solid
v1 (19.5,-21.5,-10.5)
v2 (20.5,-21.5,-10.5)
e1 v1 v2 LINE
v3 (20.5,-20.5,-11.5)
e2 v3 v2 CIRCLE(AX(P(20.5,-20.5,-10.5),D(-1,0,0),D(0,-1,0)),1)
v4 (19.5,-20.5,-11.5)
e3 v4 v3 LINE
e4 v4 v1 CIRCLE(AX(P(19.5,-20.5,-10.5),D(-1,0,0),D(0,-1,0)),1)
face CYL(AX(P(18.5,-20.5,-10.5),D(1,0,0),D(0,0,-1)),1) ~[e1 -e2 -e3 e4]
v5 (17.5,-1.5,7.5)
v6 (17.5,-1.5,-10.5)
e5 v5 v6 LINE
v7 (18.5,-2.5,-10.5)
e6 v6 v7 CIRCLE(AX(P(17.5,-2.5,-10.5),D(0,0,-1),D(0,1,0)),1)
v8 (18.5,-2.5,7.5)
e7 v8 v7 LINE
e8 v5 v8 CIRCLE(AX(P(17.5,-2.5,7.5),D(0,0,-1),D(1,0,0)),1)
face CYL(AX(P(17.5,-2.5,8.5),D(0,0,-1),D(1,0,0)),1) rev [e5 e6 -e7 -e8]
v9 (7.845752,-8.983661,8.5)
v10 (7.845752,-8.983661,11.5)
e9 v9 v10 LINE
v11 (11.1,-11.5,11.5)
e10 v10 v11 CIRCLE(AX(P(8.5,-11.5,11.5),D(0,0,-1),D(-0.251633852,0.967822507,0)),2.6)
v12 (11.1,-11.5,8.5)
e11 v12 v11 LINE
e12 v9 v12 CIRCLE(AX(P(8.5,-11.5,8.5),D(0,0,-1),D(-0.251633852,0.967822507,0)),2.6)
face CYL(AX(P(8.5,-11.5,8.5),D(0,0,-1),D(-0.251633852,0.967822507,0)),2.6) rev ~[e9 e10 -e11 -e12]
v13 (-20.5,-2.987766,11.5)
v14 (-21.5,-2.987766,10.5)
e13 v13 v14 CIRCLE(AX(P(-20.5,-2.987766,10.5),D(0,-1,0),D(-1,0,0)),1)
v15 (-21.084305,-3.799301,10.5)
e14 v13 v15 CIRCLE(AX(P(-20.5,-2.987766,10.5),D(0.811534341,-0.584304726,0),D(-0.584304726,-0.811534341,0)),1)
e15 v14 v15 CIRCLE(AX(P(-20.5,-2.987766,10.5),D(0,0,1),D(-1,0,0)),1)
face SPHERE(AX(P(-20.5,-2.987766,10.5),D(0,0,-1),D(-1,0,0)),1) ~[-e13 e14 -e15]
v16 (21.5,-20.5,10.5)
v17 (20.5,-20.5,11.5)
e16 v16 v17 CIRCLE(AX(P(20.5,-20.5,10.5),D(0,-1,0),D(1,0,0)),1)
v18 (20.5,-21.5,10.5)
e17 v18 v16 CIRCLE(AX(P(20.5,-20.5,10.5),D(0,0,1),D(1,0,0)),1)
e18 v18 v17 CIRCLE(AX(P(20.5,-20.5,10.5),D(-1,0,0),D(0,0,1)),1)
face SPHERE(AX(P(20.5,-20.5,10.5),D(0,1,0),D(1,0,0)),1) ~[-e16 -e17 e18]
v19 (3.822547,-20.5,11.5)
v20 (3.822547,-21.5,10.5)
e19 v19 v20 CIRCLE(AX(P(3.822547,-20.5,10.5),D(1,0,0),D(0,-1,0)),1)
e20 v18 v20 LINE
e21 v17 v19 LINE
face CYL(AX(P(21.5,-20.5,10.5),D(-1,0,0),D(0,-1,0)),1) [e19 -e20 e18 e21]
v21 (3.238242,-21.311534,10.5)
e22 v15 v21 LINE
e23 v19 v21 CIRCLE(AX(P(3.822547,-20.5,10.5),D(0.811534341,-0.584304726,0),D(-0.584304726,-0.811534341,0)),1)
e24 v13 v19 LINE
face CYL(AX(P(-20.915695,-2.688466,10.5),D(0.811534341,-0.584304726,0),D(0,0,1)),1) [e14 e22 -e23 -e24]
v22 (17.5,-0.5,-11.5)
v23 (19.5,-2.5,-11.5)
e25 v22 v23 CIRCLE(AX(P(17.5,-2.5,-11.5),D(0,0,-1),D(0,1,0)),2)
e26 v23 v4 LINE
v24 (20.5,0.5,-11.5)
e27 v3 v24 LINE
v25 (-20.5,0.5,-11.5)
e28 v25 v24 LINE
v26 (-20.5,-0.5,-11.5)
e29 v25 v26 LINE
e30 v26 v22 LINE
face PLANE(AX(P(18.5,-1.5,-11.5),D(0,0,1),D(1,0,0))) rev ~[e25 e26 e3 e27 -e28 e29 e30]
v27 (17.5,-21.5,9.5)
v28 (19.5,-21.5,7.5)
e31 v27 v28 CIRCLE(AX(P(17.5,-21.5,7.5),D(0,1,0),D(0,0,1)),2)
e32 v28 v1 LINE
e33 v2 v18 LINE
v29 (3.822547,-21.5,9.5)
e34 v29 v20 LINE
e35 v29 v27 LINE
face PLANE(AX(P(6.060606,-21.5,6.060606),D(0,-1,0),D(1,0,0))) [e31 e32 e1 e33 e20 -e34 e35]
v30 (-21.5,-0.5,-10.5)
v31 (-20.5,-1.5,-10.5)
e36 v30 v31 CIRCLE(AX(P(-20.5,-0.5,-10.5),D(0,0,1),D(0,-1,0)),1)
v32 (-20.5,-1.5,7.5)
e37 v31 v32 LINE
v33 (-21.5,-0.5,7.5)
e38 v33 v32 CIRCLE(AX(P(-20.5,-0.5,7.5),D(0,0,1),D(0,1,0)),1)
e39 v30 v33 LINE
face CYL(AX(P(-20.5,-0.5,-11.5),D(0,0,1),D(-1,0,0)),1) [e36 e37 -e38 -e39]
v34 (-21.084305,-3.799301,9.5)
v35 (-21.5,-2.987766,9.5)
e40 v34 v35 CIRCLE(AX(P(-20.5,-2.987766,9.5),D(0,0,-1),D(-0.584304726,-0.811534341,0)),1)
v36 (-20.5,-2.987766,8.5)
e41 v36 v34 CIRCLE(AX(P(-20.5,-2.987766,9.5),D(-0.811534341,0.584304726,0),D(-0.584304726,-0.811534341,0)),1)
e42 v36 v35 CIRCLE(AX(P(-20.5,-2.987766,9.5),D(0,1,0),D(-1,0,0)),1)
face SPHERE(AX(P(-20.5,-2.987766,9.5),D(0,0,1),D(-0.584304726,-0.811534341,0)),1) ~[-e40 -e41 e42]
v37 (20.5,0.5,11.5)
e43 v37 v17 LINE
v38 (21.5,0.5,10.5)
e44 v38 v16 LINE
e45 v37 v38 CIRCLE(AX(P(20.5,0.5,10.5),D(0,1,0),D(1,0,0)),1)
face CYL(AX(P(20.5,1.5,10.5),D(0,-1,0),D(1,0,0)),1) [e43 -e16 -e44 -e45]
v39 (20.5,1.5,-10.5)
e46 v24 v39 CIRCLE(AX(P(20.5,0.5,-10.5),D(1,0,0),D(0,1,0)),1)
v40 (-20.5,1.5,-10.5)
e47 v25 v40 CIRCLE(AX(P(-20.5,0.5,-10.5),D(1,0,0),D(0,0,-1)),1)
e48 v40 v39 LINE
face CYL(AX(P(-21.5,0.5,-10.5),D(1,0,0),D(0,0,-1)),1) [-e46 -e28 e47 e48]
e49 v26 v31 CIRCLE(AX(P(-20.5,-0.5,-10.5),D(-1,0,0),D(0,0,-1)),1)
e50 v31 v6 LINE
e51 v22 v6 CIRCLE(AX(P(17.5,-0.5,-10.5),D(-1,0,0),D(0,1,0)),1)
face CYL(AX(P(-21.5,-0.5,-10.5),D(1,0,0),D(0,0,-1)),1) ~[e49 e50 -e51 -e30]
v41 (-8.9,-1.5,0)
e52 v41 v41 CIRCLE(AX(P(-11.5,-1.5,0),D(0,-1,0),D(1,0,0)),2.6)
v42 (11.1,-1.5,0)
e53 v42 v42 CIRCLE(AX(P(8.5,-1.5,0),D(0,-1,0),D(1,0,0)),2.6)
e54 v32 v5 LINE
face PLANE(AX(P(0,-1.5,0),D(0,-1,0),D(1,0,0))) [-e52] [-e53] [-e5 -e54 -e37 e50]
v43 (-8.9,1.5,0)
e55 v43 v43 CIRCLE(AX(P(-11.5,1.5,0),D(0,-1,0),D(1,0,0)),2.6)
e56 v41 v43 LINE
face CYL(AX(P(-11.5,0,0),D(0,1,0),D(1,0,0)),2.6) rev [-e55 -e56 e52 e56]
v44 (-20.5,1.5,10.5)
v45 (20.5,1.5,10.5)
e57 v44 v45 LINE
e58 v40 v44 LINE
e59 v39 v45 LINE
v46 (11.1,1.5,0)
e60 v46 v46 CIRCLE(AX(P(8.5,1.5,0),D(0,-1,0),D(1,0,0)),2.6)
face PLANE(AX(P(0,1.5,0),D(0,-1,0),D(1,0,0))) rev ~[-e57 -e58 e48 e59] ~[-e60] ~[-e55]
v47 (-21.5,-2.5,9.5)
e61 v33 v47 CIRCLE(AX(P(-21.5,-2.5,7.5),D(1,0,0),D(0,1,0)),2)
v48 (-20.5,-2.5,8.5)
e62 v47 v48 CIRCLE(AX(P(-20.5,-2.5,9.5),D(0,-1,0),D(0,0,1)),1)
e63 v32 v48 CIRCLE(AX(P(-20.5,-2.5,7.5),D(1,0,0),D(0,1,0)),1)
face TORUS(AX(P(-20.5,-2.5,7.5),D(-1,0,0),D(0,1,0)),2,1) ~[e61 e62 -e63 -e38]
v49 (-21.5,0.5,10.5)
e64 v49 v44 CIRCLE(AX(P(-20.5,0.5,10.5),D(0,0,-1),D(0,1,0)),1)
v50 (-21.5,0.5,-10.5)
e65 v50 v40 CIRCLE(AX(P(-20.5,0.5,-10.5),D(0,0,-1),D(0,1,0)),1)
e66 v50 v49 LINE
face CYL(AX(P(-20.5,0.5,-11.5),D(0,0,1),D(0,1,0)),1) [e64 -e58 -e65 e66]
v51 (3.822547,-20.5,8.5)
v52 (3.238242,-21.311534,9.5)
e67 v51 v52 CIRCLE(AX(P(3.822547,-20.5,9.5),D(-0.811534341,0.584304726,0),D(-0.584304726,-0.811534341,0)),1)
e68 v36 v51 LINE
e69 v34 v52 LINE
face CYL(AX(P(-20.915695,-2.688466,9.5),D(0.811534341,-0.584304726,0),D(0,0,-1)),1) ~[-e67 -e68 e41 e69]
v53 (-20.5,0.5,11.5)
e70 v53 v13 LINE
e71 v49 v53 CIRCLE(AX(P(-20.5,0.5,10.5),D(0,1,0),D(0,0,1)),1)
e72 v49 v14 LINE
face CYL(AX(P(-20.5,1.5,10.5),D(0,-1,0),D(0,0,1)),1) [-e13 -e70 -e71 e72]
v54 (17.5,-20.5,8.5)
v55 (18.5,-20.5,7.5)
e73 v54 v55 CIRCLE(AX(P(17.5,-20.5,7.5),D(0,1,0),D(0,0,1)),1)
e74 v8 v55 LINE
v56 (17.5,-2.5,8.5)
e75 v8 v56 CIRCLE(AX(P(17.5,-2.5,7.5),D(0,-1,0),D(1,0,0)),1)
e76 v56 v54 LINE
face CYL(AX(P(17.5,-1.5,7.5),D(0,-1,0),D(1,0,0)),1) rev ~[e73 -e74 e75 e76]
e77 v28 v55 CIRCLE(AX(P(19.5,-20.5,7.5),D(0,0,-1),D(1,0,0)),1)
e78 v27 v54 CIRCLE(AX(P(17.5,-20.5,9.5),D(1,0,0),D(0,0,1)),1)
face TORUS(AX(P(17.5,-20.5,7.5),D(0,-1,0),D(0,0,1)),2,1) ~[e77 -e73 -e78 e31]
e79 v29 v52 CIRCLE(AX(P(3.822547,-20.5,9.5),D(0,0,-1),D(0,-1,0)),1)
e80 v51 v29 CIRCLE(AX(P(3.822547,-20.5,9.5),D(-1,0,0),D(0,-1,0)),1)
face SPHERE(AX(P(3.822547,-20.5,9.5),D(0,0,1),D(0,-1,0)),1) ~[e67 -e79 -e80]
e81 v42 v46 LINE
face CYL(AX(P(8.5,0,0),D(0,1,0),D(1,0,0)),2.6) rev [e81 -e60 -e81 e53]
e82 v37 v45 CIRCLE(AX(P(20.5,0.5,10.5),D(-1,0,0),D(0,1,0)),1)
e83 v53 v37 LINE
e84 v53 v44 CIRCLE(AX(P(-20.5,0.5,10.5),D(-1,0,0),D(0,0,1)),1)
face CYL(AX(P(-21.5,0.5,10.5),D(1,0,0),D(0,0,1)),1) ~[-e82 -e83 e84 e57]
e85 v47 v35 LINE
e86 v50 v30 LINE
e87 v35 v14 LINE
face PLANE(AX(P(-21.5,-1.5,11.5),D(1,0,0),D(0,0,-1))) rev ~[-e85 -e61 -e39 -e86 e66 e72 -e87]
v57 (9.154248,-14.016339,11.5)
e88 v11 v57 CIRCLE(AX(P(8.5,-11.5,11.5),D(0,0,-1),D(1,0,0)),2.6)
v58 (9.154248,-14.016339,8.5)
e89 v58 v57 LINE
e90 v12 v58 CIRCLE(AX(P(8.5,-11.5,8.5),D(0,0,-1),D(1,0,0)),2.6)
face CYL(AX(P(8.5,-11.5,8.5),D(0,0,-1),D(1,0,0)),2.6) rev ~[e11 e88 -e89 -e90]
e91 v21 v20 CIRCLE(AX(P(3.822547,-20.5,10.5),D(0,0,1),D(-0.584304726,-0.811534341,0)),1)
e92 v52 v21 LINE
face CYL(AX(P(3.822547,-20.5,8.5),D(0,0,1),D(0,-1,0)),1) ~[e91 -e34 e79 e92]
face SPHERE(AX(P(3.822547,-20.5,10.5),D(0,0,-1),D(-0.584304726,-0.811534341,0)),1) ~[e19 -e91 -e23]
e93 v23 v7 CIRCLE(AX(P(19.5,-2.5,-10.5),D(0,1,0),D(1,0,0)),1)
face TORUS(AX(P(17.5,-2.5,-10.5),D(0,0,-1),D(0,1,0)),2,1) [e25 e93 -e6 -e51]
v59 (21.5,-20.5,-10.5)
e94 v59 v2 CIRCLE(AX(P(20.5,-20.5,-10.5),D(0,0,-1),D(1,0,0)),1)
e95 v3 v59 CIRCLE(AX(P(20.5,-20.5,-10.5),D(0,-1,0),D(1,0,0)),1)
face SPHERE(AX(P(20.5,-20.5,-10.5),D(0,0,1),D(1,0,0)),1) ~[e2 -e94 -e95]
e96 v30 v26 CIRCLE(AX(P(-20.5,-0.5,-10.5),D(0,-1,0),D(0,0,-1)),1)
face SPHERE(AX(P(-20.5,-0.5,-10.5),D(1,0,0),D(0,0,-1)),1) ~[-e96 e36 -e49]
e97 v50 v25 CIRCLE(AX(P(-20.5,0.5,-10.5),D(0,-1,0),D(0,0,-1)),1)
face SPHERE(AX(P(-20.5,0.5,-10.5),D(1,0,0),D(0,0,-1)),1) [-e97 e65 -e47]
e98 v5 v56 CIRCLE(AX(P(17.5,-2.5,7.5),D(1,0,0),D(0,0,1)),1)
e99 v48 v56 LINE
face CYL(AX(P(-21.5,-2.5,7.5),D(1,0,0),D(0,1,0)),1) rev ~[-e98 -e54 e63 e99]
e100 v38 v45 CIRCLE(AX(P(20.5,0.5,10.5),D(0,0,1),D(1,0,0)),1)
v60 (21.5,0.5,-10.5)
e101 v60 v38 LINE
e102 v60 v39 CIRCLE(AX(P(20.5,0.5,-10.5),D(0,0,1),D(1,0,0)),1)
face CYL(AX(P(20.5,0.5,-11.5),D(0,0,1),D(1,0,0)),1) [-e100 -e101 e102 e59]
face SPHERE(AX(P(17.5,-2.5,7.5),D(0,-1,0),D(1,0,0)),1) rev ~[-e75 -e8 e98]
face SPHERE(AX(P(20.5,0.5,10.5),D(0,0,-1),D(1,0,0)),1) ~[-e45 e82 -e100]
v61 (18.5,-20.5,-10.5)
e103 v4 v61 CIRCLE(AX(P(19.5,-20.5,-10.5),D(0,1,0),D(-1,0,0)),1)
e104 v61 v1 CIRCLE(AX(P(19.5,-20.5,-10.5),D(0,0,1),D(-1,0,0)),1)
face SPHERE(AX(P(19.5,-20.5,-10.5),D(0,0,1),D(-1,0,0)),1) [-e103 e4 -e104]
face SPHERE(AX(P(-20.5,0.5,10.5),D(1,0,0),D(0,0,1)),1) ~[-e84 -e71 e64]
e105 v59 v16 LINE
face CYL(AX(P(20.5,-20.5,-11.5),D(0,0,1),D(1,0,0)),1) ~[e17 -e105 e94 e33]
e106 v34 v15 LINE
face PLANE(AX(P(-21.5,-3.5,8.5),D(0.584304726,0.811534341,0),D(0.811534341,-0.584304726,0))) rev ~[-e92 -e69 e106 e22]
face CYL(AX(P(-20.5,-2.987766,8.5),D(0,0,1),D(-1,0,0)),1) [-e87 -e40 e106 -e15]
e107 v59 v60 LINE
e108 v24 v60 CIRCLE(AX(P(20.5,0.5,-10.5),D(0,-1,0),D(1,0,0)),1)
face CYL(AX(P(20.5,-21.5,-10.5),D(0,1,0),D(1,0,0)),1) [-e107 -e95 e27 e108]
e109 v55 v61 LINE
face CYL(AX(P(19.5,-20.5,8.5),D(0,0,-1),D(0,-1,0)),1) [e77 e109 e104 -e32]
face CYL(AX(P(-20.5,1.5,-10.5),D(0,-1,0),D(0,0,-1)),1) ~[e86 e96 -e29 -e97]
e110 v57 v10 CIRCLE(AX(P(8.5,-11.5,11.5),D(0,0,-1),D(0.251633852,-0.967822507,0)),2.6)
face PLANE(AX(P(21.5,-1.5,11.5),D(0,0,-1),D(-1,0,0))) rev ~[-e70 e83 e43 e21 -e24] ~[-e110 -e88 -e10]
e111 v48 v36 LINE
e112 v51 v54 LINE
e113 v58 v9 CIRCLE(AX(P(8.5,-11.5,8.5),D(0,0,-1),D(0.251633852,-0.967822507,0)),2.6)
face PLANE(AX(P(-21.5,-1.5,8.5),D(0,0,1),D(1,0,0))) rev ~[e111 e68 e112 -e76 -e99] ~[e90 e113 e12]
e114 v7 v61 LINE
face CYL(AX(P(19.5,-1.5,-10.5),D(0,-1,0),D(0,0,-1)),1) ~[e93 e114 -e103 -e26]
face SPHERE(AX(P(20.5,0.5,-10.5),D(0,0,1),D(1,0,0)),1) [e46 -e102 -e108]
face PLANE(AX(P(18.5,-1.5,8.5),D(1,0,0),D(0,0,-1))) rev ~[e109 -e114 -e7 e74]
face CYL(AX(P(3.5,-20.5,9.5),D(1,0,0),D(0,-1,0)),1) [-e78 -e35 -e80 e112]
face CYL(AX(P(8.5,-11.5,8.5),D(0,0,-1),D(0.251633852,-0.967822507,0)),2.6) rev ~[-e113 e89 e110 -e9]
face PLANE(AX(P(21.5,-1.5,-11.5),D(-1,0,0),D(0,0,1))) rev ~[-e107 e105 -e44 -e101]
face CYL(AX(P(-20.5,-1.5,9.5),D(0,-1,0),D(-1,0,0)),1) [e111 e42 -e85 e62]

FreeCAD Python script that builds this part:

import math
import FreeCAD as App
import Part
import Sketcher
from FreeCAD import Vector


def edges_at(feature, points):
    """Names of the edges that pass closest to the given points."""
    edges = feature.Shape.Edges
    near = lambda p: min(range(len(edges)), key=lambda i: edges[i].distToShape(Part.Vertex(*p))[0])
    return sorted({f"Edge{near(p) + 1}" for p in points})


def add_polygon(sketch, points):
    """Adds a closed chain of lines whose ends are joined by coincident constraints."""
    first, n = sketch.GeometryCount, len(points)
    for a, b in zip(points, points[1:] + points[:1]):
        sketch.addGeometry(Part.LineSegment(App.Vector(*a, 0), App.Vector(*b, 0)), False)
    for i in range(n):
        sketch.addConstraint(Sketcher.Constraint("Coincident", first + i, 2, first + (i + 1) % n, 1))

doc = App.newDocument("Part")
body = doc.addObject("PartDesign::Body", "Body")

# Sketch on XZ plane
sketch1 = body.newObject("Sketcher::SketchObject", "Sketch")
sketch1.AttachmentSupport = (doc.getObject("XZ_Plane"), [""])
sketch1.MapMode = "FlatFace"
add_polygon(sketch1, [(-21.5, 11.5), (-21.5, -11.5), (21.5, -11.5), (21.5, 11.5)])  # lines 0-3
sketch1.addGeometry(Part.Circle(Vector(-11.5, 0, 0), Vector(0, 0, 1), 2.6), False)  # 4
sketch1.addGeometry(Part.Circle(Vector(8.5, 0, 0), Vector(0, 0, 1), 2.6), False)  # 5
sketch1.addConstraint(Sketcher.Constraint("Vertical", 0))
sketch1.addConstraint(Sketcher.Constraint("Horizontal", 1))
sketch1.addConstraint(Sketcher.Constraint("Vertical", 2))
sketch1.addConstraint(Sketcher.Constraint("Horizontal", 3))
sketch1.addConstraint(Sketcher.Constraint("Equal", 4, 5))
sketch1.addConstraint(Sketcher.Constraint("Symmetric", 0, 2, 2, 2, -1, 1))
sketch1.addConstraint(Sketcher.Constraint("PointOnObject", 4, 3, -1))
sketch1.addConstraint(Sketcher.Constraint("PointOnObject", 5, 3, -1))
sketch1.addConstraint(Sketcher.Constraint("Diameter", 4, 5.2))
sketch1.addConstraint(Sketcher.Constraint("DistanceX", 1, 1, 1, 2, 43.0))
sketch1.addConstraint(Sketcher.Constraint("DistanceY", 0, 2, 0, 1, 23.0))
sketch1.addConstraint(Sketcher.Constraint("DistanceX", 4, 3, 5, 3, 20.0))
sketch1.addConstraint(Sketcher.Constraint("DistanceX", 0, 2, 4, 3, 10.0))
pad1 = body.newObject("PartDesign::Pad", "Pad")
pad1.Profile = sketch1
pad1.Length = 3
pad1.Midplane = True

# Sketch on XZ plane
sketch2 = body.newObject("Sketcher::SketchObject", "Sketch001")
sketch2.AttachmentSupport = (doc.getObject("XZ_Plane"), [""])
sketch2.MapMode = "FlatFace"
sketch2.AttachmentOffset = App.Placement(Vector(0, 0, 1.5), App.Rotation())
add_polygon(sketch2, [(21.5, -11.5), (21.5, 11.5), (-21.5, 11.5), (-21.5, 8.5), (18.5, 8.5), (18.5, -11.5)])  # lines 0-5
sketch2.addConstraint(Sketcher.Constraint("Vertical", 0))
sketch2.addConstraint(Sketcher.Constraint("Horizontal", 1))
sketch2.addConstraint(Sketcher.Constraint("Vertical", 2))
sketch2.addConstraint(Sketcher.Constraint("Horizontal", 3))
sketch2.addConstraint(Sketcher.Constraint("Vertical", 4))
sketch2.addConstraint(Sketcher.Constraint("Horizontal", 5))
sketch2.addConstraint(Sketcher.Constraint("Symmetric", 1, 2, 5, 2, -1, 1))
sketch2.addConstraint(Sketcher.Constraint("Equal", 5, 2))
sketch2.addConstraint(Sketcher.Constraint("DistanceX", 1, 2, 1, 1, 43.0))
sketch2.addConstraint(Sketcher.Constraint("DistanceX", 3, 1, 3, 2, 40.0))
sketch2.addConstraint(Sketcher.Constraint("DistanceY", 0, 1, 0, 2, 23.0))
pad2 = body.newObject("PartDesign::Pad", "Pad001")
pad2.Profile = sketch2
pad2.Length = 20

# Sketch on XY plane
sketch3 = body.newObject("Sketcher::SketchObject", "Sketch002")
sketch3.AttachmentSupport = (doc.getObject("XY_Plane"), [""])
sketch3.MapMode = "FlatFace"
sketch3.AttachmentOffset = App.Placement(Vector(0, 0, 8.5), App.Rotation())
sketch3.addGeometry(Part.ArcOfCircle(Part.Circle(Vector(8.5, -11.5, 0), Vector(0, 0, 1), 2.6), math.radians(105), math.radians(285)), False)
sketch3.addGeometry(Part.ArcOfCircle(Part.Circle(Vector(8.5, -11.5, 0), Vector(0, 0, 1), 2.6), math.radians(0), math.radians(105)), False)
sketch3.addGeometry(Part.ArcOfCircle(Part.Circle(Vector(8.5, -11.5, 0), Vector(0, 0, 1), 2.6), math.radians(-75), math.radians(0)), False)
sketch3.addConstraint(Sketcher.Constraint("Tangent", 0, 1, 1, 2))
sketch3.addConstraint(Sketcher.Constraint("Tangent", 1, 1, 2, 2))
sketch3.addConstraint(Sketcher.Constraint("Tangent", 2, 1, 0, 2))
sketch3.addConstraint(Sketcher.Constraint("Horizontal", 2, 3, 1, 1))
sketch3.addConstraint(Sketcher.Constraint("Radius", 0, 2.6))
sketch3.addConstraint(Sketcher.Constraint("DistanceX", -1, 1, 0, 3, 8.5))
sketch3.addConstraint(Sketcher.Constraint("DistanceY", 0, 3, -1, 1, 11.5))
sketch3.addConstraint(Sketcher.Constraint("DistanceX", -1, 1, 0, 1, 7.845752))
sketch3.addConstraint(Sketcher.Constraint("DistanceX", -1, 1, 2, 1, 9.154248))
pocket1 = body.newObject("PartDesign::Pocket", "Pocket")
pocket1.Profile = sketch3
pocket1.Type = "ThroughAll"
pocket1.Reversed = True

# Sketch on XY plane
sketch4 = body.newObject("Sketcher::SketchObject", "Sketch003")
sketch4.AttachmentSupport = (doc.getObject("XY_Plane"), [""])
sketch4.MapMode = "FlatFace"
sketch4.AttachmentOffset = App.Placement(Vector(0, 0, 8.5), App.Rotation())
add_polygon(sketch4, [(-22, -4), (4, -22), (-22, -22)])  # lines 0-2
sketch4.addConstraint(Sketcher.Constraint("Horizontal", 1))
sketch4.addConstraint(Sketcher.Constraint("Vertical", 2))
sketch4.addConstraint(Sketcher.Constraint("DistanceX", 1, 2, 1, 1, 25.0))
sketch4.addConstraint(Sketcher.Constraint("DistanceY", 2, 1, 2, 2, 18.0))
sketch4.addConstraint(Sketcher.Constraint("DistanceX", -1, 1, 0, 2, 3.5))
sketch4.addConstraint(Sketcher.Constraint("DistanceY", 0, 2, -1, 1, 21.5))
pocket2 = body.newObject("PartDesign::Pocket", "Pocket001")
pocket2.Profile = sketch4
pocket2.Type = "ThroughAll"
pocket2.Reversed = True
doc.recompute()

fillet = body.newObject("PartDesign::Fillet", "Fillet")
fillet.Base = (pocket2, edges_at(pocket2, [
    (21.5, 1.5, 0),
    (21.5, -10, 11.5),
    (21.5, -21.5, 0),
    (21.5, -10, -11.5),
    (0, 1.5, -11.5),
    (0, 1.5, 11.5),
    (-21.5, -1, 11.5),
    (-9, -12.5, 11.5),
    (12.5, -21.5, 11.5),
    (-9, -12.5, 8.5),
    (3.5, -21.5, 10),
    (11, -21.5, 8.5),
    (18.5, -21.5, -1.5),
    (-1.5, -1.5, -11.5),
    (18.5, -11.5, 8.5),
    (18.5, -11.5, -11.5),
    (18.5, -1.5, -1.5),
    (20, -21.5, -11.5),
    (-21.5, 0, -11.5),
    (-21.5, 1.5, 0),
    (-21.5, -1.5, -1.5),
    (-21.5, -2.5, 8.5),
    (-21.5, -3.5, 10),
    (-1.5, -1.5, 8.5),
]))
fillet.Radius = 1

doc.recompute()
